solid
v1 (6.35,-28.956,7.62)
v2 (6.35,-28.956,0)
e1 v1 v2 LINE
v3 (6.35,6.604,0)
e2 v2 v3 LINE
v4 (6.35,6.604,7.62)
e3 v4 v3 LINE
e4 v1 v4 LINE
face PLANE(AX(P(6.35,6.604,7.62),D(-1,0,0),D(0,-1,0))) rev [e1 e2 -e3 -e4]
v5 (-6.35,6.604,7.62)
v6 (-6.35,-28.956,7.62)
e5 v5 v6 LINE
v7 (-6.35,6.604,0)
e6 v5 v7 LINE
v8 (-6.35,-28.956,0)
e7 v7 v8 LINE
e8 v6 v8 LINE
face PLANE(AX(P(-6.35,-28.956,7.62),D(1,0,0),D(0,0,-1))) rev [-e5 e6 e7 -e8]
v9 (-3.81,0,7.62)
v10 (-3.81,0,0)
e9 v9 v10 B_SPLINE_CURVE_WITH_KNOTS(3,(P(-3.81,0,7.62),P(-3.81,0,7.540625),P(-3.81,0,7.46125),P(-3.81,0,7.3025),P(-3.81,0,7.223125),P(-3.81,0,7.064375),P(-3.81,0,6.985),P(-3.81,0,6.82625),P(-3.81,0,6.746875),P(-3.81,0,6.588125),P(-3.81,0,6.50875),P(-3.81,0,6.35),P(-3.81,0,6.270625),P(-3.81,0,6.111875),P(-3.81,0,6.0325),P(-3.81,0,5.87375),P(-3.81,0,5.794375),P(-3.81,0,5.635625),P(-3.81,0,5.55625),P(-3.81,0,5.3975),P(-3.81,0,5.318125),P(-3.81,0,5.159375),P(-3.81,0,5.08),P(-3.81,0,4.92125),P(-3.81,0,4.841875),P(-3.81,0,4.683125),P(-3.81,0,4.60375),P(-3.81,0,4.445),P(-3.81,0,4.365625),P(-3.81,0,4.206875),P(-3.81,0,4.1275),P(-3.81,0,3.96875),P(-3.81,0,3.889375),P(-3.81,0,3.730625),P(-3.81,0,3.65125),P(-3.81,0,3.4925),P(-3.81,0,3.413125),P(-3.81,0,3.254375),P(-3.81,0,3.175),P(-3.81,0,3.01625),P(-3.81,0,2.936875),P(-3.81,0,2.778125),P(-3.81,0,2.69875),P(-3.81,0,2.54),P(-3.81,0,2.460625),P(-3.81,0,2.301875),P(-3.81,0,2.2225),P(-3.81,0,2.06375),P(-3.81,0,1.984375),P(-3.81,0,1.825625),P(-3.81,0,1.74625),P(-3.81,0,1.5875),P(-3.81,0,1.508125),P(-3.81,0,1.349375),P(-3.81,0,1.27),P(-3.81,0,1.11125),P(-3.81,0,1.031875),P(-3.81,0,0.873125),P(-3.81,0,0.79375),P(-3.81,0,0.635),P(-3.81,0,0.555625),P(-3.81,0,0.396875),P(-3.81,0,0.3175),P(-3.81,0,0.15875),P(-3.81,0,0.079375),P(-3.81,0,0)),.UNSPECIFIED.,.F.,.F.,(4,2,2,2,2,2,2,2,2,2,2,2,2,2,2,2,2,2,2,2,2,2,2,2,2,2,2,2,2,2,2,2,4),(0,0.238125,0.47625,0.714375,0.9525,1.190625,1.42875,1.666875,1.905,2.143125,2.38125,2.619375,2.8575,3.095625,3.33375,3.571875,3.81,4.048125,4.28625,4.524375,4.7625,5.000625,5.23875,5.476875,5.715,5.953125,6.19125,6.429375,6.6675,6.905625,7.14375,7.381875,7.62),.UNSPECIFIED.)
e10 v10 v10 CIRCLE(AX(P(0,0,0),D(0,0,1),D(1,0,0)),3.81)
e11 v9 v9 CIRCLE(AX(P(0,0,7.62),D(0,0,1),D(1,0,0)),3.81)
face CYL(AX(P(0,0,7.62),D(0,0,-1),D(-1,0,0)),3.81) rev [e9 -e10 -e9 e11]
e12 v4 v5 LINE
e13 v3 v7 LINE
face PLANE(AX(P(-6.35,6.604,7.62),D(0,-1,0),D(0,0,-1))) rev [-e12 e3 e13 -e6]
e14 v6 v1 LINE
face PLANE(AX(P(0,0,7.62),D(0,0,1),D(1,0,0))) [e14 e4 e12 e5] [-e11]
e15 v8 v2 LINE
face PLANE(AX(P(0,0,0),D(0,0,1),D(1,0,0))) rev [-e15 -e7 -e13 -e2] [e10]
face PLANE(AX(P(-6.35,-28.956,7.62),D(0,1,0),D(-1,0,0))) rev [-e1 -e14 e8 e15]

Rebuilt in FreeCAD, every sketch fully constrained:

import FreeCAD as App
import Part
import Sketcher
Q = App.Units.Quantity


def add_polygon(sketch, points):
    """Adds a closed chain of lines whose ends are joined by coincident constraints."""
    first, n = sketch.GeometryCount, len(points)
    for a, b in zip(points, points[1:] + points[:1]):
        sketch.addGeometry(Part.LineSegment(App.Vector(*a, 0), App.Vector(*b, 0)), False)
    for i in range(n):
        sketch.addConstraint(Sketcher.Constraint("Coincident", first + i, 2, first + (i + 1) % n, 1))

doc = App.newDocument("Part")
body = doc.addObject("PartDesign::Body", "Body")

sketch1 = doc.addObject("Sketcher::SketchObject", "Sketch")
body.addObject(sketch1)
sketch1.AttachmentSupport = (doc.XY_Plane, [""])
sketch1.MapMode = "FlatFace"
add_polygon(sketch1, [(-6.3, 6.6), (-6.3, -29), (6.3, -29), (6.3, 6.6)])
sketch1.addGeometry(Part.Circle(App.Vector(0, 0, 0), App.Vector(0, 0, 1), 3.8), False)
sketch1.addConstraint([
    Sketcher.Constraint("Vertical", 0),
    Sketcher.Constraint("Horizontal", 1),
    Sketcher.Constraint("Vertical", 2),
    Sketcher.Constraint("Horizontal", 3),
    Sketcher.Constraint("Coincident", 4, 3, -1, 1),
    Sketcher.Constraint("Diameter", 4, Q("0.3 in")),
    Sketcher.Constraint("DistanceX", 1, 1, 1, 2, Q("0.5 in")),
    Sketcher.Constraint("DistanceY", 0, 2, 0, 1, Q("1.4 in")),
    Sketcher.Constraint("DistanceX", 0, 2, -1, 1, Q("0.25 in")),
    Sketcher.Constraint("DistanceY", 0, 2, -1, 1, Q("1.14 in")),
])
pad1 = doc.addObject("PartDesign::Pad", "Pad")
body.addObject(pad1)
pad1.Profile = sketch1
pad1.Length = Q("0.3 in")

doc.recompute()
